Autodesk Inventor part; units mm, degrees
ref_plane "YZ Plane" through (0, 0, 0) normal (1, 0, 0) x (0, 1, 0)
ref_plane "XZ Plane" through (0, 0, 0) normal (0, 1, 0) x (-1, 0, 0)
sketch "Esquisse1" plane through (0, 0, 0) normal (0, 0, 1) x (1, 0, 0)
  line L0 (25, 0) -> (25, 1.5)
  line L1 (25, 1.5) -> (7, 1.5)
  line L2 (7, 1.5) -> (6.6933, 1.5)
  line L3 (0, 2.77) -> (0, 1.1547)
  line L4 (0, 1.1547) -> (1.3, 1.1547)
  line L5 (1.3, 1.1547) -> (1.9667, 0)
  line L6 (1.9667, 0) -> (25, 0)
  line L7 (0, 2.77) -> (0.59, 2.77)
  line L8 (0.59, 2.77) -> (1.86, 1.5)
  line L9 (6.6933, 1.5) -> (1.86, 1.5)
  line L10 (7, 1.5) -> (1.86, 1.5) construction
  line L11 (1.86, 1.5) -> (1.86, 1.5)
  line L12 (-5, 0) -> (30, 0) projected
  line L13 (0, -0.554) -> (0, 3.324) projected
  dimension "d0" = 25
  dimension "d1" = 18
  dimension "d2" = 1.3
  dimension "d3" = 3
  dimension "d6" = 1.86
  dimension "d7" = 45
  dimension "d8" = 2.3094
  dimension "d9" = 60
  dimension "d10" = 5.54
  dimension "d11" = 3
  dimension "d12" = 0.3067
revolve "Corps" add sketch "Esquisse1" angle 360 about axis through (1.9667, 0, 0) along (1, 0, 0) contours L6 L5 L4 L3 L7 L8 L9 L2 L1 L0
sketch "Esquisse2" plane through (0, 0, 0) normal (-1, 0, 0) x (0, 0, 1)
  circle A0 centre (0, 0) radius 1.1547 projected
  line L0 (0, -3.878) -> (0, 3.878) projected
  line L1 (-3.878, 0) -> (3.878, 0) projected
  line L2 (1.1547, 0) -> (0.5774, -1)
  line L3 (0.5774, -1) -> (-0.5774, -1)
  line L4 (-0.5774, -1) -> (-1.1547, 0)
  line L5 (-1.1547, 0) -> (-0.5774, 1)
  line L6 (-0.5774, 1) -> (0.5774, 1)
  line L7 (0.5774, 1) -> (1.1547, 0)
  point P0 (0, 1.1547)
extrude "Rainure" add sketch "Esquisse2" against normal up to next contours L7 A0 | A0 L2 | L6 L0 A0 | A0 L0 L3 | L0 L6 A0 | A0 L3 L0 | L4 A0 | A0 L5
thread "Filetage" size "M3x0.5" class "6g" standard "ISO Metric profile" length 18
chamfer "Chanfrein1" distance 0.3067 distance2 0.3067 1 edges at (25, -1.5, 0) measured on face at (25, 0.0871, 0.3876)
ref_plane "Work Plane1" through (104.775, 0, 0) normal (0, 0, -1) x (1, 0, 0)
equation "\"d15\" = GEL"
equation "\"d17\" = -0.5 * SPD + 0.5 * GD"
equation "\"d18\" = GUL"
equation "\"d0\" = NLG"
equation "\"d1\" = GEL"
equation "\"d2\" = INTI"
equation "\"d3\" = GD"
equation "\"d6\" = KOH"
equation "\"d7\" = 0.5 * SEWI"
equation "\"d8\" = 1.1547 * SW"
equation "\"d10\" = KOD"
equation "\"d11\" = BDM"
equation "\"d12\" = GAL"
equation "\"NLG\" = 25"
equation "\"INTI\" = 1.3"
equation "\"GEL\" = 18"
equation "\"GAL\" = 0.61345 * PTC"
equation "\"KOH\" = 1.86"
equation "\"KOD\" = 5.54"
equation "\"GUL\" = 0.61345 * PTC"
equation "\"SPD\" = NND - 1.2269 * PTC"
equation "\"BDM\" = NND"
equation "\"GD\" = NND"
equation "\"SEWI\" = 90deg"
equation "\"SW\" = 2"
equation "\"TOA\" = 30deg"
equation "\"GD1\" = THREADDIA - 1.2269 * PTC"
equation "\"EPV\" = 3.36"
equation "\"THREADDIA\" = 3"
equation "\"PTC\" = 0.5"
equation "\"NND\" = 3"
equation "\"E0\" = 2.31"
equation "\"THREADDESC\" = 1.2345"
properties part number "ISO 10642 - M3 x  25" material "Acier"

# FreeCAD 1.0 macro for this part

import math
import FreeCAD as App
import Part
import Sketcher

V = App.Vector
Q = App.Units.Quantity


def edges_at(feature, points):
    """Names of the edges that pass closest to the given points."""
    edges = feature.Shape.Edges
    near = lambda p: min(range(len(edges)), key=lambda i: edges[i].distToShape(Part.Vertex(*p))[0])
    return sorted({f"Edge{near(p) + 1}" for p in points})


def add_polygon(sketch, points):
    """Adds a closed chain of lines whose ends are joined by coincident constraints."""
    first, n = sketch.GeometryCount, len(points)
    for a, b in zip(points, points[1:] + points[:1]):
        sketch.addGeometry(Part.LineSegment(App.Vector(*a, 0), App.Vector(*b, 0)), False)
    for i in range(n):
        sketch.addConstraint(Sketcher.Constraint("Coincident", first + i, 2, first + (i + 1) % n, 1))

doc = App.newDocument("Part")
body = doc.addObject("PartDesign::Body", "Body")

# Sketch on XY plane
sketch1 = body.newObject("Sketcher::SketchObject", "Sketch")
sketch1.AttachmentSupport = (doc.getObject("XY_Plane"), [""])
sketch1.MapMode = "FlatFace"
add_polygon(sketch1, [(1.9667, 0), (25, 0), (25, 1.5), (1.86, 1.5), (0.59, 2.77), (0, 2.77), (0, 1.1547), (1.3, 1.1547)])  # lines 0-7
sketch1.addConstraint([
    Sketcher.Constraint("Horizontal", 0),
    Sketcher.Constraint("Vertical", 1),
    Sketcher.Constraint("Horizontal", 2),
    Sketcher.Constraint("Horizontal", 4),
    Sketcher.Constraint("Vertical", 5),
    Sketcher.Constraint("Horizontal", 6),
    Sketcher.Constraint("PointOnObject", 0, 2, -1),
    Sketcher.Constraint("PointOnObject", 4, 2, -2),
    Sketcher.Constraint("DistanceX", 6, 1, 6, 2, 1.3),
    Sketcher.Constraint("DistanceX", -1, 1, 0, 2, 25.0),
    Sketcher.Constraint("DistanceX", -1, 1, 2, 2, 1.86),
    Sketcher.Constraint("Angle", 3, Q("135 deg")),
    Sketcher.Constraint("DistanceY", 1, 1, 1, 2, 1.5),
    Sketcher.Constraint("DistanceX", 4, 2, 4, 1, 0.59),
    Sketcher.Constraint("DistanceX", 0, 1, 0, 2, 23.0333),
    Sketcher.Constraint("DistanceY", 5, 2, 5, 1, 1.6153),
])
revolution = body.newObject("PartDesign::Revolution", "Revolution")
revolution.Profile = sketch1
revolution.ReferenceAxis = (sketch1, ["H_Axis"])
revolution.Angle = 360

# Sketch on YZ plane
sketch2 = body.newObject("Sketcher::SketchObject", "Sketch001")
sketch2.AttachmentSupport = (doc.getObject("YZ_Plane"), [""])
sketch2.MapMode = "FlatFace"
sketch2.addGeometry([
    Part.LineSegment(V(1, 0.5774, 0), V(0, 1.1547, 0)),  # 0
    Part.ArcOfCircle(Part.Circle(V(0, 0, 0), V(0, 0, 1), 1.1547), math.radians(30.002137), math.radians(90)),  # 1
    Part.ArcOfCircle(Part.Circle(V(0, 0, 0), V(0, 0, 1), 1.1547), math.radians(90), math.radians(149.997863)),  # 2
    Part.LineSegment(V(0, 1.1547, 0), V(-1, 0.5774, 0)),  # 3
    Part.ArcOfCircle(Part.Circle(V(0, 0, 0), V(0, 0, 1), 1.1547), math.radians(-30.002137), math.radians(30.002137)),  # 4
    Part.LineSegment(V(1, 0.5774, 0), V(1, -0.5774, 0)),  # 5
    Part.LineSegment(V(-1, 0.5774, 0), V(-1, -0.5774, 0)),  # 6
    Part.ArcOfCircle(Part.Circle(V(0, 0, 0), V(0, 0, 1), 1.1547), math.radians(149.997863), math.radians(210.002137)),  # 7
    Part.LineSegment(V(-1, -0.5774, 0), V(0, -1.1547, 0)),  # 8
    Part.ArcOfCircle(Part.Circle(V(0, 0, 0), V(0, 0, 1), 1.1547), math.radians(-149.997863), math.radians(-90)),  # 9
    Part.ArcOfCircle(Part.Circle(V(0, 0, 0), V(0, 0, 1), 1.1547), math.radians(-90), math.radians(-30.002137)),  # 10
    Part.LineSegment(V(0, -1.1547, 0), V(1, -0.5774, 0)),  # 11
], False)
sketch2.addConstraint([
    Sketcher.Constraint("Coincident", 0, 1, 1, 1),
    Sketcher.Constraint("Coincident", 1, 2, 0, 2),
    Sketcher.Constraint("Coincident", 2, 1, 3, 1),
    Sketcher.Constraint("Coincident", 3, 2, 2, 2),
    Sketcher.Constraint("Coincident", 4, 1, 5, 2),
    Sketcher.Constraint("Coincident", 5, 1, 4, 2),
    Sketcher.Constraint("Coincident", 6, 1, 7, 1),
    Sketcher.Constraint("Coincident", 7, 2, 6, 2),
    Sketcher.Constraint("Coincident", 8, 1, 9, 1),
    Sketcher.Constraint("Coincident", 9, 2, 8, 2),
    Sketcher.Constraint("Coincident", 10, 1, 11, 1),
    Sketcher.Constraint("Coincident", 11, 2, 10, 2),
    Sketcher.Constraint("Vertical", 5),
    Sketcher.Constraint("Vertical", 6),
    Sketcher.Constraint("Coincident", 1, 3, -1, 1),
    Sketcher.Constraint("Coincident", 2, 3, -1, 1),
    Sketcher.Constraint("Coincident", 4, 3, -1, 1),
    Sketcher.Constraint("Coincident", 7, 3, -1, 1),
    Sketcher.Constraint("Coincident", 9, 3, -1, 1),
    Sketcher.Constraint("Coincident", 10, 3, -1, 1),
    Sketcher.Constraint("Coincident", 2, 1, 1, 2),
    Sketcher.Constraint("Coincident", 5, 1, 0, 1),
    Sketcher.Constraint("Coincident", 6, 1, 3, 2),
    Sketcher.Constraint("Coincident", 8, 1, 7, 2),
    Sketcher.Constraint("Coincident", 10, 1, 9, 2),
    Sketcher.Constraint("PointOnObject", 1, 2, -2),
    Sketcher.Constraint("PointOnObject", 9, 2, -2),
    Sketcher.Constraint("Parallel", 0, 8),
    Sketcher.Constraint("Parallel", 3, 11),
    Sketcher.Constraint("DistanceX", -1, 1, 0, 1, 1.0),
    Sketcher.Constraint("Radius", 1, 1.1547),
])
pad1 = body.newObject("PartDesign::Pad", "Pad")
pad1.Profile = sketch2
pad1.Length = 1.3893
doc.recompute()

chamfer = body.newObject("PartDesign::Chamfer", "Chamfer")
chamfer.Base = (pad1, edges_at(pad1, [(25, -1.5, 0)]))
chamfer.ChamferType = "Two distances"
chamfer.Size = 0.3067
chamfer.Size2 = 0.3067

doc.recompute()
